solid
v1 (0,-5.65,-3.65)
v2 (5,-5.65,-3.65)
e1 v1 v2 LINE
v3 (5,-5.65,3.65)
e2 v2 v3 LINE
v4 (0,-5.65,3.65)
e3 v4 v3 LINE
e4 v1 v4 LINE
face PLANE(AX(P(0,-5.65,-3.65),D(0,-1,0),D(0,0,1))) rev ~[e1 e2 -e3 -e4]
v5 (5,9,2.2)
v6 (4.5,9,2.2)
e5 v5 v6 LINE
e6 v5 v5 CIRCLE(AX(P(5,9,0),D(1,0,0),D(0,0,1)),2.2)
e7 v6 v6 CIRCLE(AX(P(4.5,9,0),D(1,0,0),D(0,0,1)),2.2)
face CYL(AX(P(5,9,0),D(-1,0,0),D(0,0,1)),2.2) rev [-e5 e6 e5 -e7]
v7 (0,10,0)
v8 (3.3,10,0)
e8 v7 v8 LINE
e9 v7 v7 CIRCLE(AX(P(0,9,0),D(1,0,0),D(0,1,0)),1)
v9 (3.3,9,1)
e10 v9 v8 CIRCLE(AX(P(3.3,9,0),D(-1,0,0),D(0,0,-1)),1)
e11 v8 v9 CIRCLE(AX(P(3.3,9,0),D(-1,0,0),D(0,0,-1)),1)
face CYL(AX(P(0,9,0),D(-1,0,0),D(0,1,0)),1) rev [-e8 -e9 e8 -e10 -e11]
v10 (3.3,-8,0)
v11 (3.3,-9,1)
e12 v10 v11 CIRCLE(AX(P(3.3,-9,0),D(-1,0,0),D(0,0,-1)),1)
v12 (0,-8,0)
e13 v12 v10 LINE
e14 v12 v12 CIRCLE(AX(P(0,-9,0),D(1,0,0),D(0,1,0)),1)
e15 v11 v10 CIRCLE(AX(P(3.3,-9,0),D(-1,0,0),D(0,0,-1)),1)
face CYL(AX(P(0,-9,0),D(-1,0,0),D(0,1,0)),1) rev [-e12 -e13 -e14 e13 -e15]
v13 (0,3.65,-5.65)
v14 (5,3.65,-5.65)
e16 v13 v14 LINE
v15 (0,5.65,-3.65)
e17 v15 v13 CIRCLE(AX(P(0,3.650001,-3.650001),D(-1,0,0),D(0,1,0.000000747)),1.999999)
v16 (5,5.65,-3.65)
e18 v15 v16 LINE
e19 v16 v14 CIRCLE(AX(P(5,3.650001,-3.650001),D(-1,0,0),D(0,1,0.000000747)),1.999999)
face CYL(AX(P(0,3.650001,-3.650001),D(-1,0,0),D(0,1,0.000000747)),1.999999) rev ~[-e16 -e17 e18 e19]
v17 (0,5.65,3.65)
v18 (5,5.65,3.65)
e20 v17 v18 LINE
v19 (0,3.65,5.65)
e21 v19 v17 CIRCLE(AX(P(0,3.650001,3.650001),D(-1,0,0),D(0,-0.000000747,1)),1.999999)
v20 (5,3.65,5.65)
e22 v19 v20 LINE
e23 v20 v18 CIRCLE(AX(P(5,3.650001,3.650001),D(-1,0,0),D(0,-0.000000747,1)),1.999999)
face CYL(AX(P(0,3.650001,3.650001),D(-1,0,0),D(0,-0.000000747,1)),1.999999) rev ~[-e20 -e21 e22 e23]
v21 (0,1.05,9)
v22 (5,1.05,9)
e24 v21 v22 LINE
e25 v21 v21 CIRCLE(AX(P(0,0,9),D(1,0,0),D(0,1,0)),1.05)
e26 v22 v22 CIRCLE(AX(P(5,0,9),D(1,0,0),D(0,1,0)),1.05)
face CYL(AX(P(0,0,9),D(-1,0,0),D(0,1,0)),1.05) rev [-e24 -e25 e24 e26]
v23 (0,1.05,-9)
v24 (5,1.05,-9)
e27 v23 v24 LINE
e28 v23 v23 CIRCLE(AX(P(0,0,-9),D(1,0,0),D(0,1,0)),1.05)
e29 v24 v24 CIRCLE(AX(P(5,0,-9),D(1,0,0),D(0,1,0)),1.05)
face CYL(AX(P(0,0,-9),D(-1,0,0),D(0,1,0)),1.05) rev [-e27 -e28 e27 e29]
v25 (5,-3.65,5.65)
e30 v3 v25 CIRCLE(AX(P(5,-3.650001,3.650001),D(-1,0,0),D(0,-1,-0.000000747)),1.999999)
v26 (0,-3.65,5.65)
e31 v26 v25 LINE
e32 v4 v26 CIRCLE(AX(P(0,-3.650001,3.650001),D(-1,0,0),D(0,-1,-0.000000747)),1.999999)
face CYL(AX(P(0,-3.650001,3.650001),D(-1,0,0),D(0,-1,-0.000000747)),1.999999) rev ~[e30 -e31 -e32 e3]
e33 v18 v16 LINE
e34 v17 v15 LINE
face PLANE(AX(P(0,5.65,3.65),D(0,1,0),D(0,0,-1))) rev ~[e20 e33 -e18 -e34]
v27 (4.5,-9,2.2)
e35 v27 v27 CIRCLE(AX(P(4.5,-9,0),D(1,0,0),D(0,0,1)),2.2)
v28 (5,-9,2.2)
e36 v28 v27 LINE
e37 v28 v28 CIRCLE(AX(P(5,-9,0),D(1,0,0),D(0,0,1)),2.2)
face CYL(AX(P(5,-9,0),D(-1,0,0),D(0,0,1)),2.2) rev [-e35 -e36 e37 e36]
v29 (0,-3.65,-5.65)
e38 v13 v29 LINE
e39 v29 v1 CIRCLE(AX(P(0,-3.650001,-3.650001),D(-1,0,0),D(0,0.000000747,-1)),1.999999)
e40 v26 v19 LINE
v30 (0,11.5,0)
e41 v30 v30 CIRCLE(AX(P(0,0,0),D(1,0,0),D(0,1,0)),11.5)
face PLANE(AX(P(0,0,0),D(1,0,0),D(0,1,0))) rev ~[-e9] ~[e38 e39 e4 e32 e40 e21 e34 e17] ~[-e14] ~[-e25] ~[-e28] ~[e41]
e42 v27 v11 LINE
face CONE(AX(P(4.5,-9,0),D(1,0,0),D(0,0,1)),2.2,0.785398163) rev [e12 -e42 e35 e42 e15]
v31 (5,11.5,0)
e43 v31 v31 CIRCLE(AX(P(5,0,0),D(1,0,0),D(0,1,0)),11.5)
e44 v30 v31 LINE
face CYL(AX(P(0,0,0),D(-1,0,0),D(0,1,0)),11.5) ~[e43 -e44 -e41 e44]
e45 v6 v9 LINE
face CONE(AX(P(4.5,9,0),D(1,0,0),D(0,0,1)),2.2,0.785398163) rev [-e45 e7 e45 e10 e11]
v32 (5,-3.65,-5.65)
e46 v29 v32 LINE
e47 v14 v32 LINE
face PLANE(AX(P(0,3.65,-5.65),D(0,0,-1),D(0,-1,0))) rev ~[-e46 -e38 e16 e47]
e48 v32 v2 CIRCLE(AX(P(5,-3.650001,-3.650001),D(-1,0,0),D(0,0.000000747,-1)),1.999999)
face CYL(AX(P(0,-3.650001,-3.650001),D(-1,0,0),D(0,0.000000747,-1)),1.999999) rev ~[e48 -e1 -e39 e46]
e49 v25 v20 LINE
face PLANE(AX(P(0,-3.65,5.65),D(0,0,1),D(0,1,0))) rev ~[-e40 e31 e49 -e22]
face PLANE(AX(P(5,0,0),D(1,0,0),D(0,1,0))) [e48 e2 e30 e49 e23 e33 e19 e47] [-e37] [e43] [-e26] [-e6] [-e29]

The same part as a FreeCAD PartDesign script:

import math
import FreeCAD as App
import Part
import Sketcher
Q = App.Units.Quantity


def add_polygon(sketch, points):
    """Adds a closed chain of lines whose ends are joined by coincident constraints."""
    first, n = sketch.GeometryCount, len(points)
    for a, b in zip(points, points[1:] + points[:1]):
        sketch.addGeometry(Part.LineSegment(App.Vector(*a, 0), App.Vector(*b, 0)), False)
    for i in range(n):
        sketch.addConstraint(Sketcher.Constraint("Coincident", first + i, 2, first + (i + 1) % n, 1))

doc = App.newDocument("Part")
params = doc.addObject("Spreadsheet::Sheet", "Params")
for row, (alias, value) in enumerate([
    ("sketch1_diameter", "23 mm"),
    ("sketch1_diameter2", "2 mm"),
    ("sketch1_radius", "1.999999 mm"),
    ("sketch1_diameter3", "2.1 mm"),
    ("sketch1_width", "7.3 mm"),
    ("pad1_length", "5 mm"),
    ("sketch2_width", "2.7 mm"),
    ("sketch2_width2", "0.5 mm"),
    ("groove_angle", "360 deg"),
    ("sketch3_width", "2.7 mm"),
    ("sketch3_width2", "0.5 mm"),
    ("groove2_angle", "360 deg"),
], start=1):
    params.set(f"A{row}", alias)
    params.set(f"B{row}", "=" + value)
    params.setAlias(f"B{row}", alias)

body = doc.addObject("PartDesign::Body", "Body")

# Sketch on YZ plane
sketch1 = body.newObject("Sketcher::SketchObject", "Sketch")
sketch1.AttachmentSupport = (doc.getObject("YZ_Plane"), [""])
sketch1.MapMode = "FlatFace"
sketch1.addGeometry([
    Part.Circle(App.Vector(0, 0, 0), App.Vector(0, 0, 1), 11.5),  # 0
    Part.Circle(App.Vector(0, -9, 0), App.Vector(0, 0, 1), 1.05),  # 1
    Part.Circle(App.Vector(-9, 0, 0), App.Vector(0, 0, 1), 1),  # 2
    Part.LineSegment(App.Vector(-5.65, -3.65, 0), App.Vector(-5.65, 3.65, 0)),  # 3
    Part.ArcOfCircle(Part.Circle(App.Vector(-3.650001, 3.650001, 0), App.Vector(0, 0, 1), 1.999999), math.radians(89.999957), math.radians(180.000043)),  # 4
    Part.LineSegment(App.Vector(-3.65, 5.65, 0), App.Vector(3.65, 5.65, 0)),  # 5
    Part.ArcOfCircle(Part.Circle(App.Vector(3.650001, 3.650001, 0), App.Vector(0, 0, 1), 1.999999), math.radians(-0.000043), math.radians(90.000043)),  # 6
    Part.LineSegment(App.Vector(5.65, 3.65, 0), App.Vector(5.65, -3.65, 0)),  # 7
    Part.ArcOfCircle(Part.Circle(App.Vector(3.650001, -3.650001, 0), App.Vector(0, 0, 1), 1.999999), math.radians(-90.000043), math.radians(0.000043)),  # 8
    Part.LineSegment(App.Vector(3.65, -5.65, 0), App.Vector(-3.65, -5.65, 0)),  # 9
    Part.ArcOfCircle(Part.Circle(App.Vector(-3.650001, -3.650001, 0), App.Vector(0, 0, 1), 1.999999), math.radians(179.999957), math.radians(270.000043)),  # 10
    Part.Circle(App.Vector(9, 0, 0), App.Vector(0, 0, 1), 1),  # 11
    Part.Circle(App.Vector(0, 9, 0), App.Vector(0, 0, 1), 1.05),  # 12
], False)
sketch1.addConstraint([
    Sketcher.Constraint("Tangent", 3, 2, 4, 2),
    Sketcher.Constraint("Tangent", 4, 1, 5, 1),
    Sketcher.Constraint("Tangent", 5, 2, 6, 2),
    Sketcher.Constraint("Tangent", 6, 1, 7, 1),
    Sketcher.Constraint("Tangent", 7, 2, 8, 2),
    Sketcher.Constraint("Tangent", 8, 1, 9, 1),
    Sketcher.Constraint("Tangent", 9, 2, 10, 2),
    Sketcher.Constraint("Tangent", 10, 1, 3, 1),
    Sketcher.Constraint("Vertical", 3),
    Sketcher.Constraint("Horizontal", 5),
    Sketcher.Constraint("Vertical", 7),
    Sketcher.Constraint("Horizontal", 9),
    Sketcher.Constraint("Coincident", 0, 3, -1, 1),
    Sketcher.Constraint("Equal", 4, 6),
    Sketcher.Constraint("Equal", 6, 8),
    Sketcher.Constraint("Equal", 8, 10),
    Sketcher.Constraint("Equal", 2, 11),
    Sketcher.Constraint("Equal", 1, 12),
    Sketcher.Constraint("Symmetric", 4, 3, 8, 3, -1, 1),
    Sketcher.Constraint("Symmetric", 2, 3, 11, 3, -1, 1),
    Sketcher.Constraint("Symmetric", 1, 3, 12, 3, -1, 1),
    Sketcher.Constraint("PointOnObject", 1, 3, -2),
    Sketcher.Constraint("PointOnObject", 2, 3, -1),
    Sketcher.Constraint("Equal", 9, 3),
    Sketcher.Constraint("Diameter", 0, 23.0),
    Sketcher.Constraint("Diameter", 2, 2.0),
    Sketcher.Constraint("Radius", 4, 1.999999),
    Sketcher.Constraint("Diameter", 1, 2.1),
    Sketcher.Constraint("DistanceX", 5, 1, 5, 2, 7.3),
    Sketcher.Constraint("DistanceY", 1, 3, -1, 1, 9.0),
    Sketcher.Constraint("DistanceX", 2, 3, -1, 1, 9.0),
])
sketch1.setExpression("Constraints[24]", "Params.sketch1_diameter")
sketch1.setExpression("Constraints[25]", "Params.sketch1_diameter2")
sketch1.setExpression("Constraints[26]", "Params.sketch1_radius")
sketch1.setExpression("Constraints[27]", "Params.sketch1_diameter3")
sketch1.setExpression("Constraints[28]", "Params.sketch1_width")
pad1 = body.newObject("PartDesign::Pad", "Pad")
pad1.Profile = sketch1
pad1.setExpression("Length", "Params.pad1_length")

# Sketch on XZ plane
sketch2 = body.newObject("Sketcher::SketchObject", "Sketch001")
sketch2.AttachmentSupport = (doc.getObject("XZ_Plane"), [""])
sketch2.MapMode = "FlatFace"
sketch2.AttachmentOffset = App.Placement(App.Vector(0, 0, 9), App.Rotation())
add_polygon(sketch2, [(2.3, 0), (5, 0), (5, 2.2), (4.5, 2.2)])  # lines 0-3
sketch2.addConstraint([
    Sketcher.Constraint("Horizontal", 0),
    Sketcher.Constraint("Vertical", 1),
    Sketcher.Constraint("Horizontal", 2),
    Sketcher.Constraint("PointOnObject", 0, 2, -1),
    Sketcher.Constraint("Angle", 3, Q("-135 deg")),
    Sketcher.Constraint("DistanceX", 0, 1, 0, 2, 2.7),
    Sketcher.Constraint("DistanceX", 2, 2, 2, 1, 0.5),
    Sketcher.Constraint("DistanceX", -1, 1, 0, 2, 5.0),
])
sketch2.setExpression("Constraints[9]", "Params.sketch2_width")
sketch2.setExpression("Constraints[10]", "Params.sketch2_width2")
groove = body.newObject("PartDesign::Groove", "Groove")
groove.Profile = sketch2
groove.ReferenceAxis = (sketch2, ["H_Axis"])
groove.setExpression("Angle", "Params.groove_angle")

# Sketch on XZ plane
sketch3 = body.newObject("Sketcher::SketchObject", "Sketch002")
sketch3.AttachmentSupport = (doc.getObject("XZ_Plane"), [""])
sketch3.MapMode = "FlatFace"
sketch3.AttachmentOffset = App.Placement(App.Vector(0, 0, -9), App.Rotation())
add_polygon(sketch3, [(4.5, 2.2), (2.3, 0), (5, 0), (5, 2.2)])  # lines 0-3
sketch3.addConstraint([
    Sketcher.Constraint("Horizontal", 1),
    Sketcher.Constraint("Vertical", 2),
    Sketcher.Constraint("Horizontal", 3),
    Sketcher.Constraint("PointOnObject", 0, 2, -1),
    Sketcher.Constraint("Angle", 0, Q("-135 deg")),
    Sketcher.Constraint("DistanceX", 1, 1, 1, 2, 2.7),
    Sketcher.Constraint("DistanceX", 3, 2, 3, 1, 0.5),
    Sketcher.Constraint("DistanceX", -1, 1, 1, 2, 5.0),
])
sketch3.setExpression("Constraints[9]", "Params.sketch3_width")
sketch3.setExpression("Constraints[10]", "Params.sketch3_width2")
groove2 = body.newObject("PartDesign::Groove", "Groove001")
groove2.Profile = sketch3
groove2.ReferenceAxis = (sketch3, ["H_Axis"])
groove2.setExpression("Angle", "Params.groove2_angle")

doc.recompute()
